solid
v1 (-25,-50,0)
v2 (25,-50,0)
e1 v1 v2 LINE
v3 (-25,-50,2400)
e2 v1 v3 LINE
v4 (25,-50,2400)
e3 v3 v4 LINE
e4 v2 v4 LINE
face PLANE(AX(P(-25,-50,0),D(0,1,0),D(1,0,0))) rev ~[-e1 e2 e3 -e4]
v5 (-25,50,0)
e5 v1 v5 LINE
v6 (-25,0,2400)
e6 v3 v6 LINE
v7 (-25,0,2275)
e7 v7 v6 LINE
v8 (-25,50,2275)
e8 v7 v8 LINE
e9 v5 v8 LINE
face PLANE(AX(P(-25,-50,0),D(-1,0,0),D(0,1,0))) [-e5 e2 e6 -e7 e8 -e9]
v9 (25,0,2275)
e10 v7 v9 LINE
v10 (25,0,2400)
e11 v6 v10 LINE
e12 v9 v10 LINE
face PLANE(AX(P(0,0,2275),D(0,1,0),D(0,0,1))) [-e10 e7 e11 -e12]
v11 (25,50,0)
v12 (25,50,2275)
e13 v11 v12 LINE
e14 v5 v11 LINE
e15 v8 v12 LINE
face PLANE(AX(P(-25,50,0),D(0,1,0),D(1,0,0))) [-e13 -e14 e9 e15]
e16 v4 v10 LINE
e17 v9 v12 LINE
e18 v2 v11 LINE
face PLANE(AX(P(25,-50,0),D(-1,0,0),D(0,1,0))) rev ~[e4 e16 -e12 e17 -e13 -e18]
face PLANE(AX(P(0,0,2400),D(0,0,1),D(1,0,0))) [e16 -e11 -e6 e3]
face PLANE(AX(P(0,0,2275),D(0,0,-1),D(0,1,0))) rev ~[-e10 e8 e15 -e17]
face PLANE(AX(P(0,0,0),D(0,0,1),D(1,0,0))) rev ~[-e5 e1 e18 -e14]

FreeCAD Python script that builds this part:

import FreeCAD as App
import Part
import Sketcher
Q = App.Units.Quantity

doc = App.newDocument("Part")
body = doc.addObject("PartDesign::Body", "Body")

# Sketch on XY plane
sketch1 = body.newObject("Sketcher::SketchObject", "Sketch")
sketch1.AttachmentSupport = (doc.getObject("XY_Plane"), [""])
sketch1.MapMode = "FlatFace"
sketch1.addGeometry([
    Part.LineSegment(App.Vector(-25, 50, 0), App.Vector(-25, -50, 0)),
    Part.LineSegment(App.Vector(-25, -50, 0), App.Vector(25, -50, 0)),
    Part.LineSegment(App.Vector(25, -50, 0), App.Vector(25, 50, 0)),
    Part.LineSegment(App.Vector(25, 50, 0), App.Vector(-25, 50, 0)),
], False)
sketch1.addConstraint([
    Sketcher.Constraint("Coincident", 0, 2, 1, 1),
    Sketcher.Constraint("Coincident", 1, 2, 2, 1),
    Sketcher.Constraint("Coincident", 2, 2, 3, 1),
    Sketcher.Constraint("Coincident", 3, 2, 0, 1),
    Sketcher.Constraint("Vertical", 0),
    Sketcher.Constraint("Horizontal", 1),
    Sketcher.Constraint("Vertical", 2),
    Sketcher.Constraint("Horizontal", 3),
    Sketcher.Constraint("Symmetric", 0, 2, 2, 2, -1, 1),
    Sketcher.Constraint("DistanceX", 1, 1, 1, 2, Q("50 mm")),
    Sketcher.Constraint("DistanceY", 0, 2, 0, 1, Q("100 mm")),
])
pad1 = body.newObject("PartDesign::Pad", "Pad")
pad1.Profile = sketch1
pad1.Length = 2400

# Sketch on YZ plane
sketch2 = body.newObject("Sketcher::SketchObject", "Sketch001")
sketch2.AttachmentSupport = (doc.getObject("YZ_Plane"), [""])
sketch2.MapMode = "FlatFace"
sketch2.addGeometry([
    Part.LineSegment(App.Vector(0, 2400, 0), App.Vector(0, 2275, 0)),
    Part.LineSegment(App.Vector(0, 2275, 0), App.Vector(50, 2275, 0)),
    Part.LineSegment(App.Vector(50, 2275, 0), App.Vector(50, 2400, 0)),
    Part.LineSegment(App.Vector(50, 2400, 0), App.Vector(0, 2400, 0)),
], False)
sketch2.addConstraint([
    Sketcher.Constraint("Coincident", 0, 2, 1, 1),
    Sketcher.Constraint("Coincident", 1, 2, 2, 1),
    Sketcher.Constraint("Coincident", 2, 2, 3, 1),
    Sketcher.Constraint("Coincident", 3, 2, 0, 1),
    Sketcher.Constraint("Vertical", 0),
    Sketcher.Constraint("Horizontal", 1),
    Sketcher.Constraint("Vertical", 2),
    Sketcher.Constraint("Horizontal", 3),
    Sketcher.Constraint("PointOnObject", 0, 2, -2),
    Sketcher.Constraint("DistanceX", 1, 1, 1, 2, Q("50 mm")),
    Sketcher.Constraint("DistanceY", 0, 2, 0, 1, Q("125 mm")),
    Sketcher.Constraint("DistanceY", -1, 1, 0, 2, Q("2275 mm")),
])
pocket1 = body.newObject("PartDesign::Pocket", "Pocket")
pocket1.Profile = sketch2
pocket1.Type = "ThroughAll"
pocket1.Midplane = True

doc.recompute()
